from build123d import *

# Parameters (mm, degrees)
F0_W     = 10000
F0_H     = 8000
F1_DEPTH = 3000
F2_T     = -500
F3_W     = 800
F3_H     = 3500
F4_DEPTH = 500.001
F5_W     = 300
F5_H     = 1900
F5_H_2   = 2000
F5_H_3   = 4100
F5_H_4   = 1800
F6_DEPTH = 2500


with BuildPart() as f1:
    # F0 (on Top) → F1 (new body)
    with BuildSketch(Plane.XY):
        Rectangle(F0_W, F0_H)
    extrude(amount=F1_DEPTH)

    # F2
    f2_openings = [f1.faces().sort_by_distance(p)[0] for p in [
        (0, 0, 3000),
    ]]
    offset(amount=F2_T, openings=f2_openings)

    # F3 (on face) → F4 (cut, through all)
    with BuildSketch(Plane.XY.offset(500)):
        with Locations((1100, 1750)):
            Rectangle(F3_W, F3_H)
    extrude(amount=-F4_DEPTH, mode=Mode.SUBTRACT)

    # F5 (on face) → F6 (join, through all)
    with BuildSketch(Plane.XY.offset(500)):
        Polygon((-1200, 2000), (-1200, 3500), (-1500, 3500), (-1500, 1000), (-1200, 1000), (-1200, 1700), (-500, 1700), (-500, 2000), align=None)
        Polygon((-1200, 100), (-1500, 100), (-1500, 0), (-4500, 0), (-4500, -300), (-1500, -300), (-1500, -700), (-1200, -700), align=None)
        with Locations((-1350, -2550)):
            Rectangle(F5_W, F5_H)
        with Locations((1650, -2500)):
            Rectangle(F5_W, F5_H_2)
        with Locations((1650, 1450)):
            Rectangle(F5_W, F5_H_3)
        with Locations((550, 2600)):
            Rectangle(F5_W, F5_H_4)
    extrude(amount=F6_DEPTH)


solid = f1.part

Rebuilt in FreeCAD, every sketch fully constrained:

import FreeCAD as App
import Part
import Sketcher

V = App.Vector


def faces_at(feature, points):
    """Names of the faces that lie closest to the given points."""
    faces = feature.Shape.Faces
    near = lambda p: min(range(len(faces)), key=lambda i: faces[i].distToShape(Part.Vertex(*p))[0])
    return sorted({f"Face{near(p) + 1}" for p in points})


def add_polygon(sketch, points):
    """Adds a closed chain of lines whose ends are joined by coincident constraints."""
    first, n = sketch.GeometryCount, len(points)
    for a, b in zip(points, points[1:] + points[:1]):
        sketch.addGeometry(Part.LineSegment(App.Vector(*a, 0), App.Vector(*b, 0)), False)
    for i in range(n):
        sketch.addConstraint(Sketcher.Constraint("Coincident", first + i, 2, first + (i + 1) % n, 1))

doc = App.newDocument("Part")
body = doc.addObject("PartDesign::Body", "Body")

sketch1 = body.newObject("Sketcher::SketchObject", "Sketch")
sketch1.AttachmentSupport = (doc.getObject("XY_Plane"), [""])
sketch1.MapMode = "FlatFace"
add_polygon(sketch1, [(-5000, 4000), (-5000, -4000), (5000, -4000), (5000, 4000)])
sketch1.addConstraint([
    Sketcher.Constraint("Vertical", 0),
    Sketcher.Constraint("Horizontal", 1),
    Sketcher.Constraint("Vertical", 2),
    Sketcher.Constraint("Horizontal", 3),
    Sketcher.Constraint("Symmetric", 0, 2, 2, 2, -1, 1),
    Sketcher.Constraint("DistanceX", 1, 1, 1, 2, 10000.0),
    Sketcher.Constraint("DistanceY", 0, 2, 0, 1, 8000.0),
])
pad1 = body.newObject("PartDesign::Pad", "Pad")
pad1.Profile = sketch1
pad1.Length = 3000
doc.recompute()

thickness = body.newObject("PartDesign::Thickness", "Thickness")
thickness.Base = (pad1, faces_at(pad1, [(0, 0, 3000)]))
thickness.Value = 500
thickness.Reversed = True
thickness.Join = "Arc"

sketch2 = body.newObject("Sketcher::SketchObject", "Sketch001")
sketch2.AttachmentSupport = (doc.getObject("XY_Plane"), [""])
sketch2.MapMode = "FlatFace"
sketch2.AttachmentOffset = App.Placement(V(0, 0, 500), App.Rotation())
add_polygon(sketch2, [(700, 3500), (700, 0), (1500, 0), (1500, 3500)])
sketch2.addConstraint([
    Sketcher.Constraint("Vertical", 0),
    Sketcher.Constraint("Horizontal", 1),
    Sketcher.Constraint("Vertical", 2),
    Sketcher.Constraint("Horizontal", 3),
    Sketcher.Constraint("PointOnObject", 0, 2, -1),
    Sketcher.Constraint("DistanceX", 1, 1, 1, 2, 800.0),
    Sketcher.Constraint("DistanceY", 0, 2, 0, 1, 3500.0),
    Sketcher.Constraint("DistanceX", -1, 1, 0, 2, 700.0),
])
pocket1 = body.newObject("PartDesign::Pocket", "Pocket")
pocket1.Profile = sketch2
pocket1.Type = "ThroughAll"

sketch3 = body.newObject("Sketcher::SketchObject", "Sketch002")
sketch3.AttachmentSupport = (doc.getObject("XY_Plane"), [""])
sketch3.MapMode = "FlatFace"
sketch3.AttachmentOffset = App.Placement(V(0, 0, 500), App.Rotation())
add_polygon(sketch3, [(-1200, 2000), (-1200, 3500), (-1500, 3500), (-1500, 1000), (-1200, 1000), (-1200, 1700), (-500, 1700), (-500, 2000)])
add_polygon(sketch3, [(-1200, 100), (-1500, 100), (-1500, 0), (-4500, 0), (-4500, -300), (-1500, -300), (-1500, -700), (-1200, -700)])
add_polygon(sketch3, [(-1500, -1600), (-1500, -3500), (-1200, -3500), (-1200, -1600)])
add_polygon(sketch3, [(1500, -1500), (1500, -3500), (1800, -3500), (1800, -1500)])
add_polygon(sketch3, [(1500, 3500), (1500, -600), (1800, -600), (1800, 3500)])
add_polygon(sketch3, [(400, 3500), (400, 1700), (700, 1700), (700, 3500)])
sketch3.addConstraint([
    Sketcher.Constraint("Vertical", 0),
    Sketcher.Constraint("Horizontal", 1),
    Sketcher.Constraint("Vertical", 2),
    Sketcher.Constraint("Horizontal", 3),
    Sketcher.Constraint("Vertical", 4),
    Sketcher.Constraint("Horizontal", 5),
    Sketcher.Constraint("Vertical", 6),
    Sketcher.Constraint("Horizontal", 7),
    Sketcher.Constraint("Horizontal", 8),
    Sketcher.Constraint("Vertical", 9),
    Sketcher.Constraint("Horizontal", 10),
    Sketcher.Constraint("Vertical", 11),
    Sketcher.Constraint("Horizontal", 12),
    Sketcher.Constraint("Vertical", 13),
    Sketcher.Constraint("Horizontal", 14),
    Sketcher.Constraint("Vertical", 15),
    Sketcher.Constraint("Vertical", 16),
    Sketcher.Constraint("Horizontal", 17),
    Sketcher.Constraint("Vertical", 18),
    Sketcher.Constraint("Horizontal", 19),
    Sketcher.Constraint("Vertical", 20),
    Sketcher.Constraint("Horizontal", 21),
    Sketcher.Constraint("Vertical", 22),
    Sketcher.Constraint("Horizontal", 23),
    Sketcher.Constraint("Vertical", 24),
    Sketcher.Constraint("Horizontal", 25),
    Sketcher.Constraint("Vertical", 26),
    Sketcher.Constraint("Horizontal", 27),
    Sketcher.Constraint("Vertical", 28),
    Sketcher.Constraint("Horizontal", 29),
    Sketcher.Constraint("Vertical", 30),
    Sketcher.Constraint("Horizontal", 31),
    Sketcher.Constraint("Symmetric", 1, 2, 20, 2, -1, 1),
    Sketcher.Constraint("Symmetric", 16, 2, 27, 2, -1, 1),
    Sketcher.Constraint("Symmetric", 16, 2, 20, 2, -2),
    Sketcher.Constraint("PointOnObject", 9, 2, -1),
    Sketcher.Constraint("Horizontal", 5, 2, 28, 2),
    Sketcher.Constraint("Horizontal", 27, 2, 30, 2),
    Sketcher.Constraint("Vertical", 0, 2, 3, 2),
    Sketcher.Constraint("Vertical", 2, 2, 8, 2),
    Sketcher.Constraint("Vertical", 9, 2, 12, 2),
    Sketcher.Constraint("Vertical", 7, 2, 14, 2),
    Sketcher.Constraint("Vertical", 15, 2, 17, 2),
    Sketcher.Constraint("Vertical", 22, 2, 25, 2),
    Sketcher.Constraint("Equal", 19, 21),
    Sketcher.Constraint("Equal", 27, 29),
    Sketcher.Constraint("Equal", 7, 4),
    Sketcher.Constraint("Equal", 31, 6),
    Sketcher.Constraint("Equal", 6, 11),
    Sketcher.Constraint("DistanceX", 1, 2, 1, 1, 300.0),
    Sketcher.Constraint("DistanceX", 5, 1, 5, 2, 700.0),
    Sketcher.Constraint("DistanceX", 10, 2, 10, 1, 3000.0),
    Sketcher.Constraint("DistanceY", 0, 1, 0, 2, 1500.0),
    Sketcher.Constraint("DistanceY", 9, 2, 9, 1, 100.0),
    Sketcher.Constraint("DistanceY", 13, 2, 13, 1, 400.0),
    Sketcher.Constraint("DistanceY", 16, 2, 16, 1, 1900.0),
    Sketcher.Constraint("DistanceY", 20, 2, 20, 1, 2000.0),
    Sketcher.Constraint("DistanceY", 24, 2, 24, 1, 4100.0),
    Sketcher.Constraint("DistanceX", 0, 2, -1, 1, 1200.0),
    Sketcher.Constraint("DistanceY", -1, 1, 0, 2, 3500.0),
    Sketcher.Constraint("DistanceX", -1, 1, 28, 2, 400.0),
])
pad2 = body.newObject("PartDesign::Pad", "Pad001")
pad2.Profile = sketch3
pad2.Length = 2500

doc.recompute()
